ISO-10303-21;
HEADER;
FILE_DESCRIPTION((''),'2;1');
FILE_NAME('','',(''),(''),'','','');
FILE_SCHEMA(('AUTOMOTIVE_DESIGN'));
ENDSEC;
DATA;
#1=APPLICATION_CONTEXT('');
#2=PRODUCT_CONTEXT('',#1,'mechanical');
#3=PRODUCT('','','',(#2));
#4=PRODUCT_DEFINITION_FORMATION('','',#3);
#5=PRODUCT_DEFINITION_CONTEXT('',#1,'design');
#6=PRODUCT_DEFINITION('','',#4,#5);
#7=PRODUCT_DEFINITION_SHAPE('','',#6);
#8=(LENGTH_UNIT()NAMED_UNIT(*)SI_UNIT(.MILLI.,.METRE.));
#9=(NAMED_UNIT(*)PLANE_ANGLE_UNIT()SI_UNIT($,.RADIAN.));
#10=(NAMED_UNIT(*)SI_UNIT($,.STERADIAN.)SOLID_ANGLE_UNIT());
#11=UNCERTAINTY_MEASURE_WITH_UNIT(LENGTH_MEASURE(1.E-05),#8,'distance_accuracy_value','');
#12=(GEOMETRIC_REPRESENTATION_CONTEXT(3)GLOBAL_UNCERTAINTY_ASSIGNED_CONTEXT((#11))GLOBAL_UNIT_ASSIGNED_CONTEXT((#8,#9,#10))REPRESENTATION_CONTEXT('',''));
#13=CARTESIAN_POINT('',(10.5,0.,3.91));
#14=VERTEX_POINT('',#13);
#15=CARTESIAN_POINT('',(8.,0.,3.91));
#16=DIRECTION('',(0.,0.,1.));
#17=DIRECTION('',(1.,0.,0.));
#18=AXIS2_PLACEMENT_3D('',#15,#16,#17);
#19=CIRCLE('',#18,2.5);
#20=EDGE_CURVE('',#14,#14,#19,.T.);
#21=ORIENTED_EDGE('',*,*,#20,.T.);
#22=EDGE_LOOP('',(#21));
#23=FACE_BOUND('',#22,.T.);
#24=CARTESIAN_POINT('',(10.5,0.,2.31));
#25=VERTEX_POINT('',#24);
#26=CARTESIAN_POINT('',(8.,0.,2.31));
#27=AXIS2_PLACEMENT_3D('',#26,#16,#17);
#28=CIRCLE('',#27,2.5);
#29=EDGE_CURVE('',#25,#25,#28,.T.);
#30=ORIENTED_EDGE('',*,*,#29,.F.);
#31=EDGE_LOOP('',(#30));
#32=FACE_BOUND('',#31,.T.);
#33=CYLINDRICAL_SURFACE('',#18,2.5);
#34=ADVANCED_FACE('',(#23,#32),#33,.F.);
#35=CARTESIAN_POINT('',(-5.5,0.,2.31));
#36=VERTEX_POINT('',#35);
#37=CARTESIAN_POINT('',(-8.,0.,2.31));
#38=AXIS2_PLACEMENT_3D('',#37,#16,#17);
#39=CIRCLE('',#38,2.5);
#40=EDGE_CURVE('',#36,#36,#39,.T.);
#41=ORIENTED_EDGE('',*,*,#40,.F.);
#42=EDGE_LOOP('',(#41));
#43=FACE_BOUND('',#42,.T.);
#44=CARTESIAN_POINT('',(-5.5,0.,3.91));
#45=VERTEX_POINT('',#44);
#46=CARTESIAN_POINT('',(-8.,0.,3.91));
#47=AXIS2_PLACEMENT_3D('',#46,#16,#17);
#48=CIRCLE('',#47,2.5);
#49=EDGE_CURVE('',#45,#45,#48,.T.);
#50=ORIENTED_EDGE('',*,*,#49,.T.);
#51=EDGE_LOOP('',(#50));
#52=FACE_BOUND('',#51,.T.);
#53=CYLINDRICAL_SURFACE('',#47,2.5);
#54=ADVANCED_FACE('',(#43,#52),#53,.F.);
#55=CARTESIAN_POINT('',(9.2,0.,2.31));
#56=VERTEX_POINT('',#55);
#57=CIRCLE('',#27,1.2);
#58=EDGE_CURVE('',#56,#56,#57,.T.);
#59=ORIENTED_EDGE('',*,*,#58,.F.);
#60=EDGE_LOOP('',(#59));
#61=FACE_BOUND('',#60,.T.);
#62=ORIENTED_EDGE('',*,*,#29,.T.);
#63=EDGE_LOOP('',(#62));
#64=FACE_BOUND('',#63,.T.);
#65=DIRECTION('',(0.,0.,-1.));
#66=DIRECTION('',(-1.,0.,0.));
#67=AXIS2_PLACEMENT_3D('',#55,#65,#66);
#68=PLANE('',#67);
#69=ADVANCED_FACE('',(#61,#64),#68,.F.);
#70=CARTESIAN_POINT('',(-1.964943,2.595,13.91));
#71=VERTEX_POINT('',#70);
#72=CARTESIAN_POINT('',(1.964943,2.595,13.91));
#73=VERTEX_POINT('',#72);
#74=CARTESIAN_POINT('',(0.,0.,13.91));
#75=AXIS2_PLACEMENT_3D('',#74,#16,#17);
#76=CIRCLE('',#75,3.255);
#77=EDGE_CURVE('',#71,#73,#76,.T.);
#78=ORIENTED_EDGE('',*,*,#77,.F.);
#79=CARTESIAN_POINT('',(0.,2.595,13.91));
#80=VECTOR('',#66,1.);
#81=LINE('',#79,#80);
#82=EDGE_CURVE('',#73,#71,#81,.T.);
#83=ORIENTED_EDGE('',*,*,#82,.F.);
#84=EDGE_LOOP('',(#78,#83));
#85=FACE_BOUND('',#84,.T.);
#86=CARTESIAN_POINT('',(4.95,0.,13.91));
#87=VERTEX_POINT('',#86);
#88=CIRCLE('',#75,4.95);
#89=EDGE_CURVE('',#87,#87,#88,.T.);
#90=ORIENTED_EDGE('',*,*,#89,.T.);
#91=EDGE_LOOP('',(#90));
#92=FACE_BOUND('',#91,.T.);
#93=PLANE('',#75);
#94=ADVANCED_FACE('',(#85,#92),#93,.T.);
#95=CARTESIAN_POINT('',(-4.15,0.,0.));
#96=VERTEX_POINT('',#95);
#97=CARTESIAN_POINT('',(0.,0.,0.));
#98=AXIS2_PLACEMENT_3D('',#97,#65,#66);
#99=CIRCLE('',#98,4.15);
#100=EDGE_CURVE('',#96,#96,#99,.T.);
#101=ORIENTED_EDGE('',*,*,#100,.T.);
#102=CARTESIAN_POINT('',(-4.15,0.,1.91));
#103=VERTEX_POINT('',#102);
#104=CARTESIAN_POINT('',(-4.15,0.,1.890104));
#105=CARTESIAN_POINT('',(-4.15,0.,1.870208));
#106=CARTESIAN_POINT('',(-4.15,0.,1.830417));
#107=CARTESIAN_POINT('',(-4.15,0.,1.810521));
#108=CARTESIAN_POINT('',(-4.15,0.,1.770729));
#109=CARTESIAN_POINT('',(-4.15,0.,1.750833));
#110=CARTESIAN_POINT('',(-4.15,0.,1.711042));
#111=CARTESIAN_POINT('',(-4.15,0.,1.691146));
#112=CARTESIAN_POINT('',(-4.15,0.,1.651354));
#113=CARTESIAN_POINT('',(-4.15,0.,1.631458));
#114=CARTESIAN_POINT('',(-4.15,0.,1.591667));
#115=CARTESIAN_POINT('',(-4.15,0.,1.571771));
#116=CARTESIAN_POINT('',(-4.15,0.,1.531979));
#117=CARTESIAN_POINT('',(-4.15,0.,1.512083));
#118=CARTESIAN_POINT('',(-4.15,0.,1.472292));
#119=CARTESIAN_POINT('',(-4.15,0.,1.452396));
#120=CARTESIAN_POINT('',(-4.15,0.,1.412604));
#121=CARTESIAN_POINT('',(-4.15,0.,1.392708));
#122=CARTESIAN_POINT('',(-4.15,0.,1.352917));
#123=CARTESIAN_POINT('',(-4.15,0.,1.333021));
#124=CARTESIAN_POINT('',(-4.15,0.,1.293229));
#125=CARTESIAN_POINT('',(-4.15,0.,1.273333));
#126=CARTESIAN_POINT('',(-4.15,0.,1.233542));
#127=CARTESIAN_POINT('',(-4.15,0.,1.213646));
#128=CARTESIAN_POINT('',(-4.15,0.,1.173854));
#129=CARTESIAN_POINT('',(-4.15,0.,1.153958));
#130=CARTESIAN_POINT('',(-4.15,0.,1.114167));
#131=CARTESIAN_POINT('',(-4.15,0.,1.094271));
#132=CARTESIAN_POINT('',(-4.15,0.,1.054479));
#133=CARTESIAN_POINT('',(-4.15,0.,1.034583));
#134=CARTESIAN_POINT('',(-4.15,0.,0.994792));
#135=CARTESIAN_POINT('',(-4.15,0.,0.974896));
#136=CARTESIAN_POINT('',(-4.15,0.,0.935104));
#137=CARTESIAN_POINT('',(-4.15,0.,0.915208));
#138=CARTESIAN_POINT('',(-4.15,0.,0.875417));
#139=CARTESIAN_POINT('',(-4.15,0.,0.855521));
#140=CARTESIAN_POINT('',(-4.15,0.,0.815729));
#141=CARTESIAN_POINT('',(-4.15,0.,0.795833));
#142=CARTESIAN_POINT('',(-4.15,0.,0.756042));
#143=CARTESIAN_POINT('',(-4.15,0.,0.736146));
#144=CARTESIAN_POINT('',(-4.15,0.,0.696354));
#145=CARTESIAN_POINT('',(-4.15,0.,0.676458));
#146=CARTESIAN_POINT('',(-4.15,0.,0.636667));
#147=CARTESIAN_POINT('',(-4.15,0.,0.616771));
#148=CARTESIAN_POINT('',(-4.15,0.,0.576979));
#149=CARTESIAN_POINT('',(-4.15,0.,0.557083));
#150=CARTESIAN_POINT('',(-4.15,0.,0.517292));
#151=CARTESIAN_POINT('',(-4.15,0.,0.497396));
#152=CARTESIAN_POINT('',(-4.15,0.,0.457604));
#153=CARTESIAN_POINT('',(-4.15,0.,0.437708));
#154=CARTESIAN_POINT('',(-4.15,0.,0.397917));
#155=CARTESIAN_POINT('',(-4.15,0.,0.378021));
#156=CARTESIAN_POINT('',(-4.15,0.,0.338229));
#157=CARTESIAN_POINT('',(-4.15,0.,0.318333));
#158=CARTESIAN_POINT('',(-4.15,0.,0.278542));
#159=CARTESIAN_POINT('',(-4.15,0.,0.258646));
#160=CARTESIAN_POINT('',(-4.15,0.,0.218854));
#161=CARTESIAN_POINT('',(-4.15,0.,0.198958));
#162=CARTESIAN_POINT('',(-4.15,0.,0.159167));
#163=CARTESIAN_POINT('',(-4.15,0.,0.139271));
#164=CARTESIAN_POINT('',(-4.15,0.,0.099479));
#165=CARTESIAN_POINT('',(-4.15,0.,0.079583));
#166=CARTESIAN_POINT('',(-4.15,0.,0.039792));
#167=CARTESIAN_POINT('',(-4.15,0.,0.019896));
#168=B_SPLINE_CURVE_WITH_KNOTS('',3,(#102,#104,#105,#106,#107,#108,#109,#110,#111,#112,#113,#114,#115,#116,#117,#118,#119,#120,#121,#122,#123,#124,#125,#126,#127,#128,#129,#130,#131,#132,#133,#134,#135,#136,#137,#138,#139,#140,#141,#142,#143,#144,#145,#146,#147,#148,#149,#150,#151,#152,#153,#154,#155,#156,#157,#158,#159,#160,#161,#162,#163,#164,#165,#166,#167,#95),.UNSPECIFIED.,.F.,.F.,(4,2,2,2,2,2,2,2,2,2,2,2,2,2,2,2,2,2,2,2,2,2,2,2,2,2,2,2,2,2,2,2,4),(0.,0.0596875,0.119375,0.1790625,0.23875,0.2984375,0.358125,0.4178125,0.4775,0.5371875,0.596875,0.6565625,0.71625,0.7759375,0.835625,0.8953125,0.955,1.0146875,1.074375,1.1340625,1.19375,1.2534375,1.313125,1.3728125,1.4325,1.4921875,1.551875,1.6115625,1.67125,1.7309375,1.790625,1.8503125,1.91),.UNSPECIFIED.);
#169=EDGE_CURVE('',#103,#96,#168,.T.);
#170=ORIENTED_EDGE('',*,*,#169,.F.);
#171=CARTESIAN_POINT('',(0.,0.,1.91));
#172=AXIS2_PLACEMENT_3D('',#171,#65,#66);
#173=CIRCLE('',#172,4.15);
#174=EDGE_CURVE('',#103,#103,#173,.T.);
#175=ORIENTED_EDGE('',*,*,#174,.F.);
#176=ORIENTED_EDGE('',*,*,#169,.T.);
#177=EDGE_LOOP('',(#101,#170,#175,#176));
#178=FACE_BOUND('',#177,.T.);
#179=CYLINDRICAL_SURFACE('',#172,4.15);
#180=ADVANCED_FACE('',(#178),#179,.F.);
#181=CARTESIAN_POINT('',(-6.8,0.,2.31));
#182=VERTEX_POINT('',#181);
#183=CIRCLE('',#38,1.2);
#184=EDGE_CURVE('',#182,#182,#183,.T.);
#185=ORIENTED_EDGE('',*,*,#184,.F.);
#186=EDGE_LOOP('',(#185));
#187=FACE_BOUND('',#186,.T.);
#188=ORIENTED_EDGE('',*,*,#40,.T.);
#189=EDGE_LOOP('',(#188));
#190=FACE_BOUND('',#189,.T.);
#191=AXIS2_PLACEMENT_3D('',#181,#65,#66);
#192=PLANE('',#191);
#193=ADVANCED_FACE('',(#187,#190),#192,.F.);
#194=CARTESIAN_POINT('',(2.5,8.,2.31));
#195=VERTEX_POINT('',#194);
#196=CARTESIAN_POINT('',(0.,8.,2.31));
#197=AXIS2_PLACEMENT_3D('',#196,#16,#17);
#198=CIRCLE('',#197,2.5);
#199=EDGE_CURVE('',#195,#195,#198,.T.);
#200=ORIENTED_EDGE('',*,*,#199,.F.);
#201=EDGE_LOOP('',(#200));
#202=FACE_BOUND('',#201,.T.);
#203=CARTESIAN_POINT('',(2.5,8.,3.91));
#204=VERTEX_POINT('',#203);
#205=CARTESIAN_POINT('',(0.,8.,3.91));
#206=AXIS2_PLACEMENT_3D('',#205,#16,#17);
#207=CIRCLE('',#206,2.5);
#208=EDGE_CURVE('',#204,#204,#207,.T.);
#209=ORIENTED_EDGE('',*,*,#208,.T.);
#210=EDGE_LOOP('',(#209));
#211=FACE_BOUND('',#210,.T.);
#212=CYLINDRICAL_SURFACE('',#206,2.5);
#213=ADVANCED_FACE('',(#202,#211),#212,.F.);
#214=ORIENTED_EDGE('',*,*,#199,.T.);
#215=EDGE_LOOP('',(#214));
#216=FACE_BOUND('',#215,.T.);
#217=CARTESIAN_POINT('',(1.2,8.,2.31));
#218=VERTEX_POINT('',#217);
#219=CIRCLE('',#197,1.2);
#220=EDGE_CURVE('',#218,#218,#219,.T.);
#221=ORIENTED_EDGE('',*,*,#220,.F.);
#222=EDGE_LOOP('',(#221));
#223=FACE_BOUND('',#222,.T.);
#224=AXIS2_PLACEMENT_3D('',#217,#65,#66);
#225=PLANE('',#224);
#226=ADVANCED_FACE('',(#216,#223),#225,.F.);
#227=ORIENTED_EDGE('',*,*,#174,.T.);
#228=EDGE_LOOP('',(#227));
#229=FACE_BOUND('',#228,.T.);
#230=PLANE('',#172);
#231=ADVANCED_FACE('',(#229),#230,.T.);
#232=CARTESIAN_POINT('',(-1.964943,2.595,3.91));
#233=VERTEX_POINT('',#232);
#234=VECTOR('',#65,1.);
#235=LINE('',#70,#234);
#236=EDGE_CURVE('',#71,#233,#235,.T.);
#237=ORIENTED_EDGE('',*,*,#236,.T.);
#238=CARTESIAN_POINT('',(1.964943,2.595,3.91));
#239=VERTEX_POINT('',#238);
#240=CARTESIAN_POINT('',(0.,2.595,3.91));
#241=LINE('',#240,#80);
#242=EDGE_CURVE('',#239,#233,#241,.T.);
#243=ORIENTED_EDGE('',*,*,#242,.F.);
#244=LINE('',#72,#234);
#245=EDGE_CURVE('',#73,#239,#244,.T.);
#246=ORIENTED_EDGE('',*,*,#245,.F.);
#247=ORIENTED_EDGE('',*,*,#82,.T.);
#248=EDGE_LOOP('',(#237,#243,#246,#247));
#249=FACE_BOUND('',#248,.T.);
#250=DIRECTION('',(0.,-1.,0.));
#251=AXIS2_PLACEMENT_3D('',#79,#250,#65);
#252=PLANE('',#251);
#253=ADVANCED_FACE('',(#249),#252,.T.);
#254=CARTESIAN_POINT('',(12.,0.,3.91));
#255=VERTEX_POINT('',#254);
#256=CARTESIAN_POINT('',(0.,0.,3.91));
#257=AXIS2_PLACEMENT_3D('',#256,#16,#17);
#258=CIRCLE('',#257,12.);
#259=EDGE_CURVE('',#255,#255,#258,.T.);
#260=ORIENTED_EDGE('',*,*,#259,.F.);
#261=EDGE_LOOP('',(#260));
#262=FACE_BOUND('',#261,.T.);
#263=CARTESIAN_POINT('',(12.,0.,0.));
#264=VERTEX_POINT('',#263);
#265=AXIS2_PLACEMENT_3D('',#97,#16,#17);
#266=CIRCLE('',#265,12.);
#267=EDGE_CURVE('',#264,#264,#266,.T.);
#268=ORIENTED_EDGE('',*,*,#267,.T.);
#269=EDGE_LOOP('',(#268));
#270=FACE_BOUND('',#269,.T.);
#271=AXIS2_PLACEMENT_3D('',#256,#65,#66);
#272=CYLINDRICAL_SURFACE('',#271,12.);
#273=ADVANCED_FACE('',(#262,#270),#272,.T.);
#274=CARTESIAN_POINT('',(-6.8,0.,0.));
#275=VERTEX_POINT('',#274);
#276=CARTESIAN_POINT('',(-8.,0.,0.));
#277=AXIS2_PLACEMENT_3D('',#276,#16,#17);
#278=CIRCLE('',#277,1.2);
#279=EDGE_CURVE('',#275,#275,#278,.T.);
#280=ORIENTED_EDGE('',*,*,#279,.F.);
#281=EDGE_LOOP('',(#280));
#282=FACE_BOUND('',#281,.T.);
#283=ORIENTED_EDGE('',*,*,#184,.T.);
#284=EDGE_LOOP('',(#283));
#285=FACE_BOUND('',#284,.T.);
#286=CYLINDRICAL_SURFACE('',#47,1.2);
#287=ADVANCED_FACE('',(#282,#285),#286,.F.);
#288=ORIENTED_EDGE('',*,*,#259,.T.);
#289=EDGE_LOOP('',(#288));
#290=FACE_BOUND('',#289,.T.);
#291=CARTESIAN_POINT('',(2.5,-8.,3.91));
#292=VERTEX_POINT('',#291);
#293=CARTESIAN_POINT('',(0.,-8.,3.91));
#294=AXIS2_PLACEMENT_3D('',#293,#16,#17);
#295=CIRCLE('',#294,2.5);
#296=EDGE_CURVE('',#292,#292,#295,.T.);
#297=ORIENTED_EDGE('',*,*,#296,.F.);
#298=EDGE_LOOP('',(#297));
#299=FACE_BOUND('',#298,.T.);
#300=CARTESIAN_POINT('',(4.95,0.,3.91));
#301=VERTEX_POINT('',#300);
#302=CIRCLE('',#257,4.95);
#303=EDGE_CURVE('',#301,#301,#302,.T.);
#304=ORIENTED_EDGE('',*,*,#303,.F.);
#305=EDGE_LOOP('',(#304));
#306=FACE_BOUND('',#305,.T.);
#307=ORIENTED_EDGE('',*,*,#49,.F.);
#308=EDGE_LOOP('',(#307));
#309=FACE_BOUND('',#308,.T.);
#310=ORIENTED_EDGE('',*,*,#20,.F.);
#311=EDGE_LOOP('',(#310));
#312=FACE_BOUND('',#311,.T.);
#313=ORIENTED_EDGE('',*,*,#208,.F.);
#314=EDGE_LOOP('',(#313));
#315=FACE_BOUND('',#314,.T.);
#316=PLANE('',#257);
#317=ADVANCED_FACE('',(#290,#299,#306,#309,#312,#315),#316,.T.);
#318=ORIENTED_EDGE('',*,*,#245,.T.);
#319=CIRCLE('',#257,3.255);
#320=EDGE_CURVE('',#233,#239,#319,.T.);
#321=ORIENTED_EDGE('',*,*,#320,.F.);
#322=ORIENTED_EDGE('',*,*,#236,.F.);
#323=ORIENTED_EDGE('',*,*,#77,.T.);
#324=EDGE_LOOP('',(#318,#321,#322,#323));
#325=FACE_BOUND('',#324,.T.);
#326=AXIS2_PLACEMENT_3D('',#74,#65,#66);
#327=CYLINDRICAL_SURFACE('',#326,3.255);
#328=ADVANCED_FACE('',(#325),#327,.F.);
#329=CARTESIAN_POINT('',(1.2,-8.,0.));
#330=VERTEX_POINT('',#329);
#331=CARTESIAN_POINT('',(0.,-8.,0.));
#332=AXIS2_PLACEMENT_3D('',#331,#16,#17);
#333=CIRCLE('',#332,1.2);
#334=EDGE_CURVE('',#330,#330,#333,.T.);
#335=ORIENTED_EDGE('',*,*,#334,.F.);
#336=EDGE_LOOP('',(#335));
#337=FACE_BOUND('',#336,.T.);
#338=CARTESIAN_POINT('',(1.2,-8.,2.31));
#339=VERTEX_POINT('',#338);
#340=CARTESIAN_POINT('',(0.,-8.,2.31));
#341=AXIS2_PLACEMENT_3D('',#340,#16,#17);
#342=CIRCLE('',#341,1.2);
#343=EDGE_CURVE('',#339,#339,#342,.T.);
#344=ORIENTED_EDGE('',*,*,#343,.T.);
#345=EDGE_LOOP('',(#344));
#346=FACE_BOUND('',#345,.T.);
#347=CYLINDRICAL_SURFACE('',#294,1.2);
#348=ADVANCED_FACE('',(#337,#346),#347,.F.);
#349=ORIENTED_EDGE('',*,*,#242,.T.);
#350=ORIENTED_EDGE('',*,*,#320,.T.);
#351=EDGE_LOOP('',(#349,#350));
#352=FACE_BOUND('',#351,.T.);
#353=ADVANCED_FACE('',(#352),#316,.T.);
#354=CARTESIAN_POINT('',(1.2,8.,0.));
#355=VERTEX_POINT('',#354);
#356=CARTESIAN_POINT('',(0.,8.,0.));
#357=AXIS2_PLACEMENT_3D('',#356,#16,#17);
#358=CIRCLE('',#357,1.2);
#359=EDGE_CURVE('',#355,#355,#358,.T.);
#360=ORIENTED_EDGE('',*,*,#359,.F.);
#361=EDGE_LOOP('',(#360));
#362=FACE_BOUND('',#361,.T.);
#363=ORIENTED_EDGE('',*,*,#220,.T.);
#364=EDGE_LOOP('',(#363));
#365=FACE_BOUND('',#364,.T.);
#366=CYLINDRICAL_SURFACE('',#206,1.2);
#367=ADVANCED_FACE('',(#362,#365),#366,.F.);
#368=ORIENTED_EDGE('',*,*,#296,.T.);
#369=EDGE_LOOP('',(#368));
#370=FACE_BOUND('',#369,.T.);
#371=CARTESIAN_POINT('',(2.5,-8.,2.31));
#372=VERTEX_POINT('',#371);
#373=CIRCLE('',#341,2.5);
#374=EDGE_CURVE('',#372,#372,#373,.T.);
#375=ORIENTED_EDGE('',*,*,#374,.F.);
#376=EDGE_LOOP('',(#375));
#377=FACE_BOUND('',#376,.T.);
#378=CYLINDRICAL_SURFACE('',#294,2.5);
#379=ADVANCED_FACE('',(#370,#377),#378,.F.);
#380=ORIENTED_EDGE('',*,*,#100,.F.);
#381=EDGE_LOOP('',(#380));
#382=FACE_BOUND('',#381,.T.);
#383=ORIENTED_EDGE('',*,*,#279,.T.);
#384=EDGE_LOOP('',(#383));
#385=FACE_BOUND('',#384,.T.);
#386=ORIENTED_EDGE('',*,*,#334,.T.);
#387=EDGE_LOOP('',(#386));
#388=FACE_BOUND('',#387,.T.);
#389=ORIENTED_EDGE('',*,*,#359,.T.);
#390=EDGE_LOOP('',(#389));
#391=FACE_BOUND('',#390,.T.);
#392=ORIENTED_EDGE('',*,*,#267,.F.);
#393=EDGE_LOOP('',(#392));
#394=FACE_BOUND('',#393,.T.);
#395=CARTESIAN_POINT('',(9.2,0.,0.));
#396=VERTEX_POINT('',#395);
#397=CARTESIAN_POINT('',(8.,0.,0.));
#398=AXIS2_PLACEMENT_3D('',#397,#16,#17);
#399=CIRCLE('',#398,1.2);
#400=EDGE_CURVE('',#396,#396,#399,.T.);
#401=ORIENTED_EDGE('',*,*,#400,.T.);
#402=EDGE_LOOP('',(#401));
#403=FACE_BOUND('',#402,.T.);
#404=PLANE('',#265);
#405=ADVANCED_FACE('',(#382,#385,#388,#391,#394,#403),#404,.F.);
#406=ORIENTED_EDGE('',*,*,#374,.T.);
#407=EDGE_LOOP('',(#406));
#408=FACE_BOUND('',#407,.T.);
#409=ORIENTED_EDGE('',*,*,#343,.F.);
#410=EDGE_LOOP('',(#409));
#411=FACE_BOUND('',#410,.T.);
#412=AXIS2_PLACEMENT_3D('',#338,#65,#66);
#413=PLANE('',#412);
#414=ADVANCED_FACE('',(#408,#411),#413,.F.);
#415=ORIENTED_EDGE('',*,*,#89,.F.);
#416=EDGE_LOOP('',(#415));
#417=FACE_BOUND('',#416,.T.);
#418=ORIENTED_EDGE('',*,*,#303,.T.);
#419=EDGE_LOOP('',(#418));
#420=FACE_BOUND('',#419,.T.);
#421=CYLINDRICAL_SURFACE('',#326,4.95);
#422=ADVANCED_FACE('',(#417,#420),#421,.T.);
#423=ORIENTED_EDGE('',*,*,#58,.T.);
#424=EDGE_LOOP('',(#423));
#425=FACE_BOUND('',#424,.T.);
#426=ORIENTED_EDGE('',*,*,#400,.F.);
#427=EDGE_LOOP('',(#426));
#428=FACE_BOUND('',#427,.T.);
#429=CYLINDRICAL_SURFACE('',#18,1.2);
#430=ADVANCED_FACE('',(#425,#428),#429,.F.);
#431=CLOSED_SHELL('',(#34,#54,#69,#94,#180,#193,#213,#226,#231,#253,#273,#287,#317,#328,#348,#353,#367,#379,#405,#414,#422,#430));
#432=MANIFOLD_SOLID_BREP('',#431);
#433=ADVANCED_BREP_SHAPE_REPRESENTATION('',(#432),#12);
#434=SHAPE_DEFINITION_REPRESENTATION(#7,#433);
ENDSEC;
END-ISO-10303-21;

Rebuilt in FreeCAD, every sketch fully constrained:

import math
import FreeCAD as App
import Part
import Sketcher

doc = App.newDocument("Part")
params = doc.addObject("Spreadsheet::Sheet", "Params")
for row, (alias, value) in enumerate([
    ("sketch1_diameter", "24 mm"),
    ("pad1_length", "3.91 mm"),
    ("sketch2_diameter", "8.3 mm"),
    ("pocket1_length", "1.91 mm"),
    ("sketch3_diameter", "9.9 mm"),
    ("pad2_length", "10 mm"),
    ("sketch4_diameter", "2.4 mm"),
    ("hole_diameter", "2.4 mm"),
    ("hole_cbore_diameter", "5 mm"),
    ("hole_cbore_depth", "1.6 mm"),
], start=1):
    params.set(f"A{row}", alias)
    params.set(f"B{row}", "=" + value)
    params.setAlias(f"B{row}", alias)

body = doc.addObject("PartDesign::Body", "Body")

# Sketch on XY plane
sketch1 = body.newObject("Sketcher::SketchObject", "Sketch")
sketch1.AttachmentSupport = (doc.getObject("XY_Plane"), [""])
sketch1.MapMode = "FlatFace"
sketch1.addGeometry(Part.Circle(App.Vector(0, 0, 0), App.Vector(0, 0, 1), 12), False)
sketch1.addConstraint([
    Sketcher.Constraint("Coincident", 0, 3, -1, 1),
    Sketcher.Constraint("Diameter", 0, 24.0),
])
sketch1.setExpression("Constraints[1]", "Params.sketch1_diameter")
pad1 = body.newObject("PartDesign::Pad", "Pad")
pad1.Profile = sketch1
pad1.setExpression("Length", "Params.pad1_length")

# Sketch on XY plane
sketch2 = body.newObject("Sketcher::SketchObject", "Sketch001")
sketch2.AttachmentSupport = (doc.getObject("XY_Plane"), [""])
sketch2.MapMode = "FlatFace"
sketch2.addGeometry(Part.Circle(App.Vector(0, 0, 0), App.Vector(0, 0, 1), 4.15), False)
sketch2.addConstraint([
    Sketcher.Constraint("Coincident", 0, 3, -1, 1),
    Sketcher.Constraint("Diameter", 0, 8.3),
])
sketch2.setExpression("Constraints[1]", "Params.sketch2_diameter")
pocket1 = body.newObject("PartDesign::Pocket", "Pocket")
pocket1.Profile = sketch2
pocket1.setExpression("Length", "Params.pocket1_length")
pocket1.Reversed = True

# Sketch on XY plane
sketch3 = body.newObject("Sketcher::SketchObject", "Sketch002")
sketch3.AttachmentSupport = (doc.getObject("XY_Plane"), [""])
sketch3.MapMode = "FlatFace"
sketch3.AttachmentOffset = App.Placement(App.Vector(0, 0, 3.91), App.Rotation())
sketch3.addGeometry([
    Part.Circle(App.Vector(0, 0, 0), App.Vector(0, 0, 1), 4.95),
    Part.LineSegment(App.Vector(-1.964943, 2.595, 0), App.Vector(1.964943, 2.595, 0)),
    Part.ArcOfCircle(Part.Circle(App.Vector(0, 0, 0), App.Vector(0, 0, 1), 3.255), math.radians(127.133128), math.radians(412.866872)),
], False)
sketch3.addConstraint([
    Sketcher.Constraint("Coincident", 1, 1, 2, 1),
    Sketcher.Constraint("Coincident", 2, 2, 1, 2),
    Sketcher.Constraint("Horizontal", 1),
    Sketcher.Constraint("Coincident", 0, 3, -1, 1),
    Sketcher.Constraint("Coincident", 2, 3, -1, 1),
    Sketcher.Constraint("Diameter", 0, 9.9),
    Sketcher.Constraint("Radius", 2, 3.255),
    Sketcher.Constraint("DistanceY", -1, 1, 1, 1, 2.595),
])
sketch3.setExpression("Constraints[5]", "Params.sketch3_diameter")
pad2 = body.newObject("PartDesign::Pad", "Pad001")
pad2.Profile = sketch3
pad2.setExpression("Length", "Params.pad2_length")

# Sketch on XY plane
sketch4 = body.newObject("Sketcher::SketchObject", "Sketch003")
sketch4.AttachmentSupport = (doc.getObject("XY_Plane"), [""])
sketch4.MapMode = "FlatFace"
sketch4.AttachmentOffset = App.Placement(App.Vector(0, 0, 3.91), App.Rotation())
sketch4.addGeometry(Part.Circle(App.Vector(0, 8, 0), App.Vector(0, 0, 1), 1.2), False)
sketch4.addConstraint([
    Sketcher.Constraint("PointOnObject", 0, 3, -2),
    Sketcher.Constraint("Diameter", 0, 2.4),
    Sketcher.Constraint("DistanceY", -1, 1, 0, 3, 8.0),
])
sketch4.setExpression("Constraints[1]", "Params.sketch4_diameter")
doc.recompute()
hole = body.newObject("PartDesign::Hole", "Hole")
hole.Profile = sketch4
hole.ThreadType = "None"
hole.setExpression("Diameter", "Params.hole_diameter")
hole.DepthType = "ThroughAll"
hole.HoleCutType = "Counterbore"
hole.setExpression("HoleCutDiameter", "Params.hole_cbore_diameter")
hole.setExpression("HoleCutDepth", "Params.hole_cbore_depth")
doc.recompute()

polarpattern = body.newObject("PartDesign::PolarPattern", "PolarPattern")
polarpattern.Originals = [hole]
polarpattern.Axis = (doc.getObject("Z_Axis"), [""])
polarpattern.Angle = 360
polarpattern.Occurrences = 4
body.Tip = polarpattern

doc.recompute()
